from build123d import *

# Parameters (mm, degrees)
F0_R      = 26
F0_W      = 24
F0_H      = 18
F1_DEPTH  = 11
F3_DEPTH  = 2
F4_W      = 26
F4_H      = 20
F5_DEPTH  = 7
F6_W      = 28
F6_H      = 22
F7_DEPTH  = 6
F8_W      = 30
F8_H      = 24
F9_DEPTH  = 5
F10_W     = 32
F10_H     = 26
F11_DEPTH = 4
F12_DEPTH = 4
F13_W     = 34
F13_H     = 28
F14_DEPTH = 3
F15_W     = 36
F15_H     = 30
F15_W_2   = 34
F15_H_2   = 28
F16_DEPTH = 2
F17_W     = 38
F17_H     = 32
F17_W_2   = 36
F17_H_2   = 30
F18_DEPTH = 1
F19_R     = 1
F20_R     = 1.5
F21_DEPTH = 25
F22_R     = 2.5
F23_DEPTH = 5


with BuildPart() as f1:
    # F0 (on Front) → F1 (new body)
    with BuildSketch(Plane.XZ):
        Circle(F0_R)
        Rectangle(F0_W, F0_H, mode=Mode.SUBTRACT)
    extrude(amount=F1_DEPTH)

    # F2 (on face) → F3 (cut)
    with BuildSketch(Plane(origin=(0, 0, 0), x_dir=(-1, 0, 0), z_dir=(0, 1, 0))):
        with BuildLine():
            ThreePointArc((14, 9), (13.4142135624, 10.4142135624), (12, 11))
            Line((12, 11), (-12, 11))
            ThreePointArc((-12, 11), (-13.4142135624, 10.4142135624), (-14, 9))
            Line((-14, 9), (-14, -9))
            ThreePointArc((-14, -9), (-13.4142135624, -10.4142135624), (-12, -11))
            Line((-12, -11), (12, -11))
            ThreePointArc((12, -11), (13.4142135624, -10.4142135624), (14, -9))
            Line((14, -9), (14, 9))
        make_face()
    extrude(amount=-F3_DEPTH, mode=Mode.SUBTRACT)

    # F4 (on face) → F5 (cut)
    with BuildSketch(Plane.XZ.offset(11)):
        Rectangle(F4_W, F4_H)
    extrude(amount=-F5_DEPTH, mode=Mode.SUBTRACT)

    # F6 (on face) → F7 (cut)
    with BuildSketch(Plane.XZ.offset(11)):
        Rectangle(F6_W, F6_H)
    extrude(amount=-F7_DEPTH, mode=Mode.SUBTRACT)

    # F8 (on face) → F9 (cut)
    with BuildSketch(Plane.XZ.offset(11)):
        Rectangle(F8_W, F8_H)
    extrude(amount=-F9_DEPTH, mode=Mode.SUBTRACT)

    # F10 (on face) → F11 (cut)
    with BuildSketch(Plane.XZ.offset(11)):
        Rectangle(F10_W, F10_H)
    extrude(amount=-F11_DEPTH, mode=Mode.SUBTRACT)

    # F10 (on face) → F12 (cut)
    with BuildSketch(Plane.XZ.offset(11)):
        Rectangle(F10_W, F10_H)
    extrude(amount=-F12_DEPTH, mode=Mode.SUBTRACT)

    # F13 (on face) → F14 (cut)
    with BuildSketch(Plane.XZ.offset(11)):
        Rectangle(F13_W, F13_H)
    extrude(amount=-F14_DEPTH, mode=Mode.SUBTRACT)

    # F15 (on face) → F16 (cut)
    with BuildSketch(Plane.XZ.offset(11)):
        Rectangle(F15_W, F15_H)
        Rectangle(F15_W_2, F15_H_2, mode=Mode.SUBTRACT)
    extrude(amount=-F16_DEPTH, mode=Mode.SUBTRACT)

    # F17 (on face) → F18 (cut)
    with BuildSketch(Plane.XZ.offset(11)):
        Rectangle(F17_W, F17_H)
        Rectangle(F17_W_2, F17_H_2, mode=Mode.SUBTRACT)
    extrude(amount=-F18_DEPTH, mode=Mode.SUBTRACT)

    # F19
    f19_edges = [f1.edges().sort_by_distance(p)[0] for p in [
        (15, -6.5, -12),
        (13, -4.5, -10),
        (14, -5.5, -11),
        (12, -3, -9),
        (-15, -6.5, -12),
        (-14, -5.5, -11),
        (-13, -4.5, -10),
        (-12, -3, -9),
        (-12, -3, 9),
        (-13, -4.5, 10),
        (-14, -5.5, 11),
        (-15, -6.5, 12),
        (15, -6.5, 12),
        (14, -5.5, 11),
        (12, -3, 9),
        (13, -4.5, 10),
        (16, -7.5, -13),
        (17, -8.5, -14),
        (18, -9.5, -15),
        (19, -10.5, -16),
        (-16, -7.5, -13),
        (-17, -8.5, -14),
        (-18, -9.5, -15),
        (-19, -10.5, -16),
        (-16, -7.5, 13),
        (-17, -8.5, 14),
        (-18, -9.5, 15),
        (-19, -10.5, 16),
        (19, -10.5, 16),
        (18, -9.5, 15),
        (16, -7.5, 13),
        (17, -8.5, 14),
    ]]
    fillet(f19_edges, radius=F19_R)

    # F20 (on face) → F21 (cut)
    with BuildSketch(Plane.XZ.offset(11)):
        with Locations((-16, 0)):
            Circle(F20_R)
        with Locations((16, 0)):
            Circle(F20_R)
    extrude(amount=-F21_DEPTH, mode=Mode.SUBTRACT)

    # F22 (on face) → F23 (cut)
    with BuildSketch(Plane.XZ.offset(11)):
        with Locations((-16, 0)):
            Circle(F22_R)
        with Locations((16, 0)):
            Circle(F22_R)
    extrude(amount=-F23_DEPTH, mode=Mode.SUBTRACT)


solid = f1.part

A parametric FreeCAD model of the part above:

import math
import FreeCAD as App
import Part
import Sketcher
from FreeCAD import Vector
Q = App.Units.Quantity


def edges_at(feature, points):
    """Names of the edges that pass closest to the given points."""
    edges = feature.Shape.Edges
    near = lambda p: min(range(len(edges)), key=lambda i: edges[i].distToShape(Part.Vertex(*p))[0])
    return sorted({f"Edge{near(p) + 1}" for p in points})


def add_polygon(sketch, points):
    """Adds a closed chain of lines whose ends are joined by coincident constraints."""
    first, n = sketch.GeometryCount, len(points)
    for a, b in zip(points, points[1:] + points[:1]):
        sketch.addGeometry(Part.LineSegment(App.Vector(*a, 0), App.Vector(*b, 0)), False)
    for i in range(n):
        sketch.addConstraint(Sketcher.Constraint("Coincident", first + i, 2, first + (i + 1) % n, 1))

doc = App.newDocument("Part")
body = doc.addObject("PartDesign::Body", "Body")

sketch1 = body.newObject("Sketcher::SketchObject", "Sketch")
sketch1.AttachmentSupport = (doc.getObject("XZ_Plane"), [""])
sketch1.MapMode = "FlatFace"
sketch1.addGeometry(Part.Circle(Vector(0, 0, 0), Vector(0, 0, 1), 26), False)
add_polygon(sketch1, [(12, -9), (-12, -9), (-12, 9), (12, 9)])
sketch1.addConstraint(Sketcher.Constraint("Horizontal", 1))
sketch1.addConstraint(Sketcher.Constraint("Vertical", 2))
sketch1.addConstraint(Sketcher.Constraint("Horizontal", 3))
sketch1.addConstraint(Sketcher.Constraint("Vertical", 4))
sketch1.addConstraint(Sketcher.Constraint("Coincident", 0, 3, -1, 1))
sketch1.addConstraint(Sketcher.Constraint("Symmetric", 1, 2, 3, 2, -1, 1))
sketch1.addConstraint(Sketcher.Constraint("Diameter", 0, Q("52 mm")))
sketch1.addConstraint(Sketcher.Constraint("DistanceX", 1, 2, 1, 1, Q("24 mm")))
sketch1.addConstraint(Sketcher.Constraint("DistanceY", 2, 1, 2, 2, Q("18 mm")))
pad1 = body.newObject("PartDesign::Pad", "Pad")
pad1.Profile = sketch1
pad1.Length = 11

sketch2 = body.newObject("Sketcher::SketchObject", "Sketch001")
sketch2.AttachmentSupport = (doc.getObject("XZ_Plane"), [""])
sketch2.MapMode = "FlatFace"
sketch2.addGeometry(Part.ArcOfCircle(Part.Circle(Vector(-12, 9, 0), Vector(0, 0, 1), 2), math.radians(90), math.radians(180)), False)
sketch2.addGeometry(Part.LineSegment(Vector(-12, 11, 0), Vector(12, 11, 0)), False)
sketch2.addGeometry(Part.ArcOfCircle(Part.Circle(Vector(12, 9, 0), Vector(0, 0, 1), 2), math.radians(0), math.radians(90)), False)
sketch2.addGeometry(Part.LineSegment(Vector(14, 9, 0), Vector(14, -9, 0)), False)
sketch2.addGeometry(Part.ArcOfCircle(Part.Circle(Vector(12, -9, 0), Vector(0, 0, 1), 2), math.radians(-90), math.radians(0)), False)
sketch2.addGeometry(Part.LineSegment(Vector(12, -11, 0), Vector(-12, -11, 0)), False)
sketch2.addGeometry(Part.ArcOfCircle(Part.Circle(Vector(-12, -9, 0), Vector(0, 0, 1), 2), math.radians(180), math.radians(270)), False)
sketch2.addGeometry(Part.LineSegment(Vector(-14, -9, 0), Vector(-14, 9, 0)), False)
sketch2.addConstraint(Sketcher.Constraint("Tangent", 0, 1, 1, 1))
sketch2.addConstraint(Sketcher.Constraint("Tangent", 1, 2, 2, 2))
sketch2.addConstraint(Sketcher.Constraint("Tangent", 2, 1, 3, 1))
sketch2.addConstraint(Sketcher.Constraint("Tangent", 3, 2, 4, 2))
sketch2.addConstraint(Sketcher.Constraint("Tangent", 4, 1, 5, 1))
sketch2.addConstraint(Sketcher.Constraint("Tangent", 5, 2, 6, 2))
sketch2.addConstraint(Sketcher.Constraint("Tangent", 6, 1, 7, 1))
sketch2.addConstraint(Sketcher.Constraint("Tangent", 7, 2, 0, 2))
sketch2.addConstraint(Sketcher.Constraint("Horizontal", 1))
sketch2.addConstraint(Sketcher.Constraint("Vertical", 3))
sketch2.addConstraint(Sketcher.Constraint("Horizontal", 5))
sketch2.addConstraint(Sketcher.Constraint("Vertical", 7))
sketch2.addConstraint(Sketcher.Constraint("Equal", 0, 2))
sketch2.addConstraint(Sketcher.Constraint("Equal", 2, 4))
sketch2.addConstraint(Sketcher.Constraint("Equal", 4, 6))
sketch2.addConstraint(Sketcher.Constraint("Symmetric", 0, 3, 4, 3, -1, 1))
sketch2.addConstraint(Sketcher.Constraint("Radius", 0, Q("2 mm")))
sketch2.addConstraint(Sketcher.Constraint("DistanceX", 1, 1, 1, 2, Q("24 mm")))
sketch2.addConstraint(Sketcher.Constraint("DistanceY", 3, 2, 3, 1, Q("18 mm")))
pocket1 = body.newObject("PartDesign::Pocket", "Pocket")
pocket1.Profile = sketch2
pocket1.Length = 2
pocket1.Reversed = True

sketch3 = body.newObject("Sketcher::SketchObject", "Sketch002")
sketch3.AttachmentSupport = (doc.getObject("XZ_Plane"), [""])
sketch3.MapMode = "FlatFace"
sketch3.AttachmentOffset = App.Placement(Vector(0, 0, 11), App.Rotation())
add_polygon(sketch3, [(-13, 10), (-13, -10), (13, -10), (13, 10)])
sketch3.addConstraint(Sketcher.Constraint("Vertical", 0))
sketch3.addConstraint(Sketcher.Constraint("Horizontal", 1))
sketch3.addConstraint(Sketcher.Constraint("Vertical", 2))
sketch3.addConstraint(Sketcher.Constraint("Horizontal", 3))
sketch3.addConstraint(Sketcher.Constraint("Symmetric", 0, 2, 2, 2, -1, 1))
sketch3.addConstraint(Sketcher.Constraint("DistanceX", 1, 1, 1, 2, Q("26 mm")))
sketch3.addConstraint(Sketcher.Constraint("DistanceY", 0, 2, 0, 1, Q("20 mm")))
pocket2 = body.newObject("PartDesign::Pocket", "Pocket001")
pocket2.Profile = sketch3
pocket2.Length = 7

sketch4 = body.newObject("Sketcher::SketchObject", "Sketch003")
sketch4.AttachmentSupport = (doc.getObject("XZ_Plane"), [""])
sketch4.MapMode = "FlatFace"
sketch4.AttachmentOffset = App.Placement(Vector(0, 0, 11), App.Rotation())
add_polygon(sketch4, [(-14, 11), (-14, -11), (14, -11), (14, 11)])
sketch4.addConstraint(Sketcher.Constraint("Vertical", 0))
sketch4.addConstraint(Sketcher.Constraint("Horizontal", 1))
sketch4.addConstraint(Sketcher.Constraint("Vertical", 2))
sketch4.addConstraint(Sketcher.Constraint("Horizontal", 3))
sketch4.addConstraint(Sketcher.Constraint("Symmetric", 0, 2, 2, 2, -1, 1))
sketch4.addConstraint(Sketcher.Constraint("DistanceX", 1, 1, 1, 2, Q("28 mm")))
sketch4.addConstraint(Sketcher.Constraint("DistanceY", 0, 2, 0, 1, Q("22 mm")))
pocket3 = body.newObject("PartDesign::Pocket", "Pocket002")
pocket3.Profile = sketch4
pocket3.Length = 6

sketch5 = body.newObject("Sketcher::SketchObject", "Sketch004")
sketch5.AttachmentSupport = (doc.getObject("XZ_Plane"), [""])
sketch5.MapMode = "FlatFace"
sketch5.AttachmentOffset = App.Placement(Vector(0, 0, 11), App.Rotation())
add_polygon(sketch5, [(-15, 12), (-15, -12), (15, -12), (15, 12)])
sketch5.addConstraint(Sketcher.Constraint("Vertical", 0))
sketch5.addConstraint(Sketcher.Constraint("Horizontal", 1))
sketch5.addConstraint(Sketcher.Constraint("Vertical", 2))
sketch5.addConstraint(Sketcher.Constraint("Horizontal", 3))
sketch5.addConstraint(Sketcher.Constraint("Symmetric", 0, 2, 2, 2, -1, 1))
sketch5.addConstraint(Sketcher.Constraint("DistanceX", 1, 1, 1, 2, Q("30 mm")))
sketch5.addConstraint(Sketcher.Constraint("DistanceY", 0, 2, 0, 1, Q("24 mm")))
pocket4 = body.newObject("PartDesign::Pocket", "Pocket003")
pocket4.Profile = sketch5
pocket4.Length = 5

sketch6 = body.newObject("Sketcher::SketchObject", "Sketch005")
sketch6.AttachmentSupport = (doc.getObject("XZ_Plane"), [""])
sketch6.MapMode = "FlatFace"
sketch6.AttachmentOffset = App.Placement(Vector(0, 0, 11), App.Rotation())
add_polygon(sketch6, [(-16, 13), (-16, -13), (16, -13), (16, 13)])
sketch6.addConstraint(Sketcher.Constraint("Vertical", 0))
sketch6.addConstraint(Sketcher.Constraint("Horizontal", 1))
sketch6.addConstraint(Sketcher.Constraint("Vertical", 2))
sketch6.addConstraint(Sketcher.Constraint("Horizontal", 3))
sketch6.addConstraint(Sketcher.Constraint("Symmetric", 0, 2, 2, 2, -1, 1))
sketch6.addConstraint(Sketcher.Constraint("DistanceX", 1, 1, 1, 2, Q("32 mm")))
sketch6.addConstraint(Sketcher.Constraint("DistanceY", 0, 2, 0, 1, Q("26 mm")))
pocket5 = body.newObject("PartDesign::Pocket", "Pocket004")
pocket5.Profile = sketch6
pocket5.Length = 4

sketch7 = body.newObject("Sketcher::SketchObject", "Sketch006")
sketch7.AttachmentSupport = (doc.getObject("XZ_Plane"), [""])
sketch7.MapMode = "FlatFace"
sketch7.AttachmentOffset = App.Placement(Vector(0, 0, 11), App.Rotation())
add_polygon(sketch7, [(-16, 13), (-16, -13), (16, -13), (16, 13)])
sketch7.addConstraint(Sketcher.Constraint("Vertical", 0))
sketch7.addConstraint(Sketcher.Constraint("Horizontal", 1))
sketch7.addConstraint(Sketcher.Constraint("Vertical", 2))
sketch7.addConstraint(Sketcher.Constraint("Horizontal", 3))
sketch7.addConstraint(Sketcher.Constraint("Symmetric", 0, 2, 2, 2, -1, 1))
sketch7.addConstraint(Sketcher.Constraint("DistanceX", 1, 1, 1, 2, Q("32 mm")))
sketch7.addConstraint(Sketcher.Constraint("DistanceY", 0, 2, 0, 1, Q("26 mm")))
pocket6 = body.newObject("PartDesign::Pocket", "Pocket005")
pocket6.Profile = sketch7
pocket6.Length = 4

sketch8 = body.newObject("Sketcher::SketchObject", "Sketch007")
sketch8.AttachmentSupport = (doc.getObject("XZ_Plane"), [""])
sketch8.MapMode = "FlatFace"
sketch8.AttachmentOffset = App.Placement(Vector(0, 0, 11), App.Rotation())
add_polygon(sketch8, [(-17, 14), (-17, -14), (17, -14), (17, 14)])
sketch8.addConstraint(Sketcher.Constraint("Vertical", 0))
sketch8.addConstraint(Sketcher.Constraint("Horizontal", 1))
sketch8.addConstraint(Sketcher.Constraint("Vertical", 2))
sketch8.addConstraint(Sketcher.Constraint("Horizontal", 3))
sketch8.addConstraint(Sketcher.Constraint("Symmetric", 0, 2, 2, 2, -1, 1))
sketch8.addConstraint(Sketcher.Constraint("DistanceX", 1, 1, 1, 2, Q("34 mm")))
sketch8.addConstraint(Sketcher.Constraint("DistanceY", 0, 2, 0, 1, Q("28 mm")))
pocket7 = body.newObject("PartDesign::Pocket", "Pocket006")
pocket7.Profile = sketch8
pocket7.Length = 3

sketch9 = body.newObject("Sketcher::SketchObject", "Sketch008")
sketch9.AttachmentSupport = (doc.getObject("XZ_Plane"), [""])
sketch9.MapMode = "FlatFace"
sketch9.AttachmentOffset = App.Placement(Vector(0, 0, 11), App.Rotation())
add_polygon(sketch9, [(-18, 15), (-18, -15), (18, -15), (18, 15)])
add_polygon(sketch9, [(17, -14), (-17, -14), (-17, 14), (17, 14)])
sketch9.addConstraint(Sketcher.Constraint("Vertical", 0))
sketch9.addConstraint(Sketcher.Constraint("Horizontal", 1))
sketch9.addConstraint(Sketcher.Constraint("Vertical", 2))
sketch9.addConstraint(Sketcher.Constraint("Horizontal", 3))
sketch9.addConstraint(Sketcher.Constraint("Horizontal", 4))
sketch9.addConstraint(Sketcher.Constraint("Vertical", 5))
sketch9.addConstraint(Sketcher.Constraint("Horizontal", 6))
sketch9.addConstraint(Sketcher.Constraint("Vertical", 7))
sketch9.addConstraint(Sketcher.Constraint("Symmetric", 0, 2, 2, 2, -1, 1))
sketch9.addConstraint(Sketcher.Constraint("Symmetric", 4, 2, 6, 2, -1, 1))
sketch9.addConstraint(Sketcher.Constraint("DistanceX", 1, 1, 1, 2, Q("36 mm")))
sketch9.addConstraint(Sketcher.Constraint("DistanceX", 4, 2, 4, 1, Q("34 mm")))
sketch9.addConstraint(Sketcher.Constraint("DistanceY", 0, 2, 0, 1, Q("30 mm")))
sketch9.addConstraint(Sketcher.Constraint("DistanceY", 5, 1, 5, 2, Q("28 mm")))
pocket8 = body.newObject("PartDesign::Pocket", "Pocket007")
pocket8.Profile = sketch9
pocket8.Length = 2

sketch10 = body.newObject("Sketcher::SketchObject", "Sketch009")
sketch10.AttachmentSupport = (doc.getObject("XZ_Plane"), [""])
sketch10.MapMode = "FlatFace"
sketch10.AttachmentOffset = App.Placement(Vector(0, 0, 11), App.Rotation())
add_polygon(sketch10, [(-19, 16), (-19, -16), (19, -16), (19, 16)])
add_polygon(sketch10, [(18, -15), (-18, -15), (-18, 15), (18, 15)])
sketch10.addConstraint(Sketcher.Constraint("Vertical", 0))
sketch10.addConstraint(Sketcher.Constraint("Horizontal", 1))
sketch10.addConstraint(Sketcher.Constraint("Vertical", 2))
sketch10.addConstraint(Sketcher.Constraint("Horizontal", 3))
sketch10.addConstraint(Sketcher.Constraint("Horizontal", 4))
sketch10.addConstraint(Sketcher.Constraint("Vertical", 5))
sketch10.addConstraint(Sketcher.Constraint("Horizontal", 6))
sketch10.addConstraint(Sketcher.Constraint("Vertical", 7))
sketch10.addConstraint(Sketcher.Constraint("Symmetric", 0, 2, 2, 2, -1, 1))
sketch10.addConstraint(Sketcher.Constraint("Symmetric", 4, 2, 6, 2, -1, 1))
sketch10.addConstraint(Sketcher.Constraint("DistanceX", 1, 1, 1, 2, Q("38 mm")))
sketch10.addConstraint(Sketcher.Constraint("DistanceX", 4, 2, 4, 1, Q("36 mm")))
sketch10.addConstraint(Sketcher.Constraint("DistanceY", 0, 2, 0, 1, Q("32 mm")))
sketch10.addConstraint(Sketcher.Constraint("DistanceY", 5, 1, 5, 2, Q("30 mm")))
pocket9 = body.newObject("PartDesign::Pocket", "Pocket008")
pocket9.Profile = sketch10
pocket9.Length = 1
doc.recompute()

fillet = body.newObject("PartDesign::Fillet", "Fillet")
fillet.Base = (pocket9, edges_at(pocket9, [
    (15, -6.5, -12),
    (13, -4.5, -10),
    (14, -5.5, -11),
    (12, -3, -9),
    (-15, -6.5, -12),
    (-14, -5.5, -11),
    (-13, -4.5, -10),
    (-12, -3, -9),
    (-12, -3, 9),
    (-13, -4.5, 10),
    (-14, -5.5, 11),
    (-15, -6.5, 12),
    (15, -6.5, 12),
    (14, -5.5, 11),
    (12, -3, 9),
    (13, -4.5, 10),
    (16, -7.5, -13),
    (17, -8.5, -14),
    (18, -9.5, -15),
    (19, -10.5, -16),
    (-16, -7.5, -13),
    (-17, -8.5, -14),
    (-18, -9.5, -15),
    (-19, -10.5, -16),
    (-16, -7.5, 13),
    (-17, -8.5, 14),
    (-18, -9.5, 15),
    (-19, -10.5, 16),
    (19, -10.5, 16),
    (18, -9.5, 15),
    (16, -7.5, 13),
    (17, -8.5, 14),
]))
fillet.Radius = 1

sketch11 = body.newObject("Sketcher::SketchObject", "Sketch010")
sketch11.AttachmentSupport = (doc.getObject("XZ_Plane"), [""])
sketch11.MapMode = "FlatFace"
sketch11.AttachmentOffset = App.Placement(Vector(0, 0, 11), App.Rotation())
sketch11.addGeometry(Part.Circle(Vector(-16, 0, 0), Vector(0, 0, 1), 1.5), False)
sketch11.addGeometry(Part.Circle(Vector(16, 0, 0), Vector(0, 0, 1), 1.5), False)
sketch11.addConstraint(Sketcher.Constraint("Equal", 0, 1))
sketch11.addConstraint(Sketcher.Constraint("Symmetric", 0, 3, 1, 3, -1, 1))
sketch11.addConstraint(Sketcher.Constraint("PointOnObject", 0, 3, -1))
sketch11.addConstraint(Sketcher.Constraint("Diameter", 0, Q("3 mm")))
sketch11.addConstraint(Sketcher.Constraint("DistanceX", 0, 3, -1, 1, Q("16 mm")))
pocket10 = body.newObject("PartDesign::Pocket", "Pocket009")
pocket10.Profile = sketch11
pocket10.Length = 25

sketch12 = body.newObject("Sketcher::SketchObject", "Sketch011")
sketch12.AttachmentSupport = (doc.getObject("XZ_Plane"), [""])
sketch12.MapMode = "FlatFace"
sketch12.AttachmentOffset = App.Placement(Vector(0, 0, 11), App.Rotation())
sketch12.addGeometry(Part.Circle(Vector(-16, 0, 0), Vector(0, 0, 1), 2.5), False)
sketch12.addGeometry(Part.Circle(Vector(16, 0, 0), Vector(0, 0, 1), 2.5), False)
sketch12.addConstraint(Sketcher.Constraint("Equal", 0, 1))
sketch12.addConstraint(Sketcher.Constraint("Symmetric", 0, 3, 1, 3, -1, 1))
sketch12.addConstraint(Sketcher.Constraint("PointOnObject", 0, 3, -1))
sketch12.addConstraint(Sketcher.Constraint("Diameter", 0, Q("5 mm")))
sketch12.addConstraint(Sketcher.Constraint("DistanceX", 0, 3, -1, 1, Q("16 mm")))
pocket11 = body.newObject("PartDesign::Pocket", "Pocket010")
pocket11.Profile = sketch12
pocket11.Length = 5

doc.recompute()
